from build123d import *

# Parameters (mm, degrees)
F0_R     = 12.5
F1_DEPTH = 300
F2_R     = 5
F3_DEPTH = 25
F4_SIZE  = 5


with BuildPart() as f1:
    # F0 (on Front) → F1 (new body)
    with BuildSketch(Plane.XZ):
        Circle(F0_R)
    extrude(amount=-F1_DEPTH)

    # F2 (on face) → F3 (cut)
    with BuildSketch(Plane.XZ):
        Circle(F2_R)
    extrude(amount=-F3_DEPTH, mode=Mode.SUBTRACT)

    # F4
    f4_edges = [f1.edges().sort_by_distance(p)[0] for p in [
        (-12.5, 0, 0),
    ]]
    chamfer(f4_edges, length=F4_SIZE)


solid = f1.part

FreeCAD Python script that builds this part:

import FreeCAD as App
import Part
import Sketcher
from FreeCAD import Vector
Q = App.Units.Quantity


def edges_at(feature, points):
    """Names of the edges that pass closest to the given points."""
    edges = feature.Shape.Edges
    near = lambda p: min(range(len(edges)), key=lambda i: edges[i].distToShape(Part.Vertex(*p))[0])
    return sorted({f"Edge{near(p) + 1}" for p in points})

doc = App.newDocument("Part")
body = doc.addObject("PartDesign::Body", "Body")

# Sketch on XZ plane
sketch1 = doc.addObject("Sketcher::SketchObject", "Sketch")
body.addObject(sketch1)
sketch1.AttachmentSupport = (doc.XZ_Plane, [""])
sketch1.MapMode = "FlatFace"
sketch1.addGeometry(Part.Circle(Vector(0, 0, 0), Vector(0, 0, 1), 12), False)
sketch1.addConstraint(Sketcher.Constraint("Coincident", 0, 3, -1, 1))
sketch1.addConstraint(Sketcher.Constraint("Diameter", 0, Q("25 mm")))
pad1 = doc.addObject("PartDesign::Pad", "Pad")
body.addObject(pad1)
pad1.Profile = sketch1
pad1.Length = 300
pad1.Reversed = True

# Sketch on XZ plane
sketch2 = doc.addObject("Sketcher::SketchObject", "Sketch001")
body.addObject(sketch2)
sketch2.AttachmentSupport = (doc.XZ_Plane, [""])
sketch2.MapMode = "FlatFace"
sketch2.addGeometry(Part.Circle(Vector(0, 0, 0), Vector(0, 0, 1), 5), False)
sketch2.addConstraint(Sketcher.Constraint("Coincident", 0, 3, -1, 1))
sketch2.addConstraint(Sketcher.Constraint("Diameter", 0, Q("10 mm")))
pocket1 = doc.addObject("PartDesign::Pocket", "Pocket")
body.addObject(pocket1)
pocket1.Profile = sketch2
pocket1.Length = 25
doc.recompute()

chamfer = doc.addObject("PartDesign::Chamfer", "Chamfer")
body.addObject(chamfer)
chamfer.Base = (pocket1, edges_at(pocket1, [(-12.5, 0, 0)]))
chamfer.Size = 5

doc.recompute()
